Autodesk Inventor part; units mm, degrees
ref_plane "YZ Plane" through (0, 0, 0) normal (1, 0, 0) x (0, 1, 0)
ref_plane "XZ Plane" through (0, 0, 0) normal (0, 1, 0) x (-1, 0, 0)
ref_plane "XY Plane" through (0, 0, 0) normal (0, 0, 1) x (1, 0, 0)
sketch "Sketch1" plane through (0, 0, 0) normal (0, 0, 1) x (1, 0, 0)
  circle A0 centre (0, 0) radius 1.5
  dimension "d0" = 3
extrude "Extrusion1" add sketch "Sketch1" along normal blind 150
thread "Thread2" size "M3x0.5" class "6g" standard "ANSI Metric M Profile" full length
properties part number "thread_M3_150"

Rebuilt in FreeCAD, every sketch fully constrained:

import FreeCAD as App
import Part
import Sketcher

V = App.Vector

doc = App.newDocument("Part")
body = doc.addObject("PartDesign::Body", "Body")

# Sketch on XY plane
sketch1 = doc.addObject("Sketcher::SketchObject", "Sketch")
body.addObject(sketch1)
sketch1.AttachmentSupport = (doc.XY_Plane, [""])
sketch1.MapMode = "FlatFace"
sketch1.addGeometry(Part.Circle(V(0, 0, 0), V(0, 0, 1), 1.5), False)
sketch1.addConstraint([
    Sketcher.Constraint("Coincident", 0, 3, -1, 1),
    Sketcher.Constraint("Diameter", 0, 3.0),
])
pad1 = doc.addObject("PartDesign::Pad", "Pad")
body.addObject(pad1)
pad1.Profile = sketch1
pad1.Length = 150

doc.recompute()
